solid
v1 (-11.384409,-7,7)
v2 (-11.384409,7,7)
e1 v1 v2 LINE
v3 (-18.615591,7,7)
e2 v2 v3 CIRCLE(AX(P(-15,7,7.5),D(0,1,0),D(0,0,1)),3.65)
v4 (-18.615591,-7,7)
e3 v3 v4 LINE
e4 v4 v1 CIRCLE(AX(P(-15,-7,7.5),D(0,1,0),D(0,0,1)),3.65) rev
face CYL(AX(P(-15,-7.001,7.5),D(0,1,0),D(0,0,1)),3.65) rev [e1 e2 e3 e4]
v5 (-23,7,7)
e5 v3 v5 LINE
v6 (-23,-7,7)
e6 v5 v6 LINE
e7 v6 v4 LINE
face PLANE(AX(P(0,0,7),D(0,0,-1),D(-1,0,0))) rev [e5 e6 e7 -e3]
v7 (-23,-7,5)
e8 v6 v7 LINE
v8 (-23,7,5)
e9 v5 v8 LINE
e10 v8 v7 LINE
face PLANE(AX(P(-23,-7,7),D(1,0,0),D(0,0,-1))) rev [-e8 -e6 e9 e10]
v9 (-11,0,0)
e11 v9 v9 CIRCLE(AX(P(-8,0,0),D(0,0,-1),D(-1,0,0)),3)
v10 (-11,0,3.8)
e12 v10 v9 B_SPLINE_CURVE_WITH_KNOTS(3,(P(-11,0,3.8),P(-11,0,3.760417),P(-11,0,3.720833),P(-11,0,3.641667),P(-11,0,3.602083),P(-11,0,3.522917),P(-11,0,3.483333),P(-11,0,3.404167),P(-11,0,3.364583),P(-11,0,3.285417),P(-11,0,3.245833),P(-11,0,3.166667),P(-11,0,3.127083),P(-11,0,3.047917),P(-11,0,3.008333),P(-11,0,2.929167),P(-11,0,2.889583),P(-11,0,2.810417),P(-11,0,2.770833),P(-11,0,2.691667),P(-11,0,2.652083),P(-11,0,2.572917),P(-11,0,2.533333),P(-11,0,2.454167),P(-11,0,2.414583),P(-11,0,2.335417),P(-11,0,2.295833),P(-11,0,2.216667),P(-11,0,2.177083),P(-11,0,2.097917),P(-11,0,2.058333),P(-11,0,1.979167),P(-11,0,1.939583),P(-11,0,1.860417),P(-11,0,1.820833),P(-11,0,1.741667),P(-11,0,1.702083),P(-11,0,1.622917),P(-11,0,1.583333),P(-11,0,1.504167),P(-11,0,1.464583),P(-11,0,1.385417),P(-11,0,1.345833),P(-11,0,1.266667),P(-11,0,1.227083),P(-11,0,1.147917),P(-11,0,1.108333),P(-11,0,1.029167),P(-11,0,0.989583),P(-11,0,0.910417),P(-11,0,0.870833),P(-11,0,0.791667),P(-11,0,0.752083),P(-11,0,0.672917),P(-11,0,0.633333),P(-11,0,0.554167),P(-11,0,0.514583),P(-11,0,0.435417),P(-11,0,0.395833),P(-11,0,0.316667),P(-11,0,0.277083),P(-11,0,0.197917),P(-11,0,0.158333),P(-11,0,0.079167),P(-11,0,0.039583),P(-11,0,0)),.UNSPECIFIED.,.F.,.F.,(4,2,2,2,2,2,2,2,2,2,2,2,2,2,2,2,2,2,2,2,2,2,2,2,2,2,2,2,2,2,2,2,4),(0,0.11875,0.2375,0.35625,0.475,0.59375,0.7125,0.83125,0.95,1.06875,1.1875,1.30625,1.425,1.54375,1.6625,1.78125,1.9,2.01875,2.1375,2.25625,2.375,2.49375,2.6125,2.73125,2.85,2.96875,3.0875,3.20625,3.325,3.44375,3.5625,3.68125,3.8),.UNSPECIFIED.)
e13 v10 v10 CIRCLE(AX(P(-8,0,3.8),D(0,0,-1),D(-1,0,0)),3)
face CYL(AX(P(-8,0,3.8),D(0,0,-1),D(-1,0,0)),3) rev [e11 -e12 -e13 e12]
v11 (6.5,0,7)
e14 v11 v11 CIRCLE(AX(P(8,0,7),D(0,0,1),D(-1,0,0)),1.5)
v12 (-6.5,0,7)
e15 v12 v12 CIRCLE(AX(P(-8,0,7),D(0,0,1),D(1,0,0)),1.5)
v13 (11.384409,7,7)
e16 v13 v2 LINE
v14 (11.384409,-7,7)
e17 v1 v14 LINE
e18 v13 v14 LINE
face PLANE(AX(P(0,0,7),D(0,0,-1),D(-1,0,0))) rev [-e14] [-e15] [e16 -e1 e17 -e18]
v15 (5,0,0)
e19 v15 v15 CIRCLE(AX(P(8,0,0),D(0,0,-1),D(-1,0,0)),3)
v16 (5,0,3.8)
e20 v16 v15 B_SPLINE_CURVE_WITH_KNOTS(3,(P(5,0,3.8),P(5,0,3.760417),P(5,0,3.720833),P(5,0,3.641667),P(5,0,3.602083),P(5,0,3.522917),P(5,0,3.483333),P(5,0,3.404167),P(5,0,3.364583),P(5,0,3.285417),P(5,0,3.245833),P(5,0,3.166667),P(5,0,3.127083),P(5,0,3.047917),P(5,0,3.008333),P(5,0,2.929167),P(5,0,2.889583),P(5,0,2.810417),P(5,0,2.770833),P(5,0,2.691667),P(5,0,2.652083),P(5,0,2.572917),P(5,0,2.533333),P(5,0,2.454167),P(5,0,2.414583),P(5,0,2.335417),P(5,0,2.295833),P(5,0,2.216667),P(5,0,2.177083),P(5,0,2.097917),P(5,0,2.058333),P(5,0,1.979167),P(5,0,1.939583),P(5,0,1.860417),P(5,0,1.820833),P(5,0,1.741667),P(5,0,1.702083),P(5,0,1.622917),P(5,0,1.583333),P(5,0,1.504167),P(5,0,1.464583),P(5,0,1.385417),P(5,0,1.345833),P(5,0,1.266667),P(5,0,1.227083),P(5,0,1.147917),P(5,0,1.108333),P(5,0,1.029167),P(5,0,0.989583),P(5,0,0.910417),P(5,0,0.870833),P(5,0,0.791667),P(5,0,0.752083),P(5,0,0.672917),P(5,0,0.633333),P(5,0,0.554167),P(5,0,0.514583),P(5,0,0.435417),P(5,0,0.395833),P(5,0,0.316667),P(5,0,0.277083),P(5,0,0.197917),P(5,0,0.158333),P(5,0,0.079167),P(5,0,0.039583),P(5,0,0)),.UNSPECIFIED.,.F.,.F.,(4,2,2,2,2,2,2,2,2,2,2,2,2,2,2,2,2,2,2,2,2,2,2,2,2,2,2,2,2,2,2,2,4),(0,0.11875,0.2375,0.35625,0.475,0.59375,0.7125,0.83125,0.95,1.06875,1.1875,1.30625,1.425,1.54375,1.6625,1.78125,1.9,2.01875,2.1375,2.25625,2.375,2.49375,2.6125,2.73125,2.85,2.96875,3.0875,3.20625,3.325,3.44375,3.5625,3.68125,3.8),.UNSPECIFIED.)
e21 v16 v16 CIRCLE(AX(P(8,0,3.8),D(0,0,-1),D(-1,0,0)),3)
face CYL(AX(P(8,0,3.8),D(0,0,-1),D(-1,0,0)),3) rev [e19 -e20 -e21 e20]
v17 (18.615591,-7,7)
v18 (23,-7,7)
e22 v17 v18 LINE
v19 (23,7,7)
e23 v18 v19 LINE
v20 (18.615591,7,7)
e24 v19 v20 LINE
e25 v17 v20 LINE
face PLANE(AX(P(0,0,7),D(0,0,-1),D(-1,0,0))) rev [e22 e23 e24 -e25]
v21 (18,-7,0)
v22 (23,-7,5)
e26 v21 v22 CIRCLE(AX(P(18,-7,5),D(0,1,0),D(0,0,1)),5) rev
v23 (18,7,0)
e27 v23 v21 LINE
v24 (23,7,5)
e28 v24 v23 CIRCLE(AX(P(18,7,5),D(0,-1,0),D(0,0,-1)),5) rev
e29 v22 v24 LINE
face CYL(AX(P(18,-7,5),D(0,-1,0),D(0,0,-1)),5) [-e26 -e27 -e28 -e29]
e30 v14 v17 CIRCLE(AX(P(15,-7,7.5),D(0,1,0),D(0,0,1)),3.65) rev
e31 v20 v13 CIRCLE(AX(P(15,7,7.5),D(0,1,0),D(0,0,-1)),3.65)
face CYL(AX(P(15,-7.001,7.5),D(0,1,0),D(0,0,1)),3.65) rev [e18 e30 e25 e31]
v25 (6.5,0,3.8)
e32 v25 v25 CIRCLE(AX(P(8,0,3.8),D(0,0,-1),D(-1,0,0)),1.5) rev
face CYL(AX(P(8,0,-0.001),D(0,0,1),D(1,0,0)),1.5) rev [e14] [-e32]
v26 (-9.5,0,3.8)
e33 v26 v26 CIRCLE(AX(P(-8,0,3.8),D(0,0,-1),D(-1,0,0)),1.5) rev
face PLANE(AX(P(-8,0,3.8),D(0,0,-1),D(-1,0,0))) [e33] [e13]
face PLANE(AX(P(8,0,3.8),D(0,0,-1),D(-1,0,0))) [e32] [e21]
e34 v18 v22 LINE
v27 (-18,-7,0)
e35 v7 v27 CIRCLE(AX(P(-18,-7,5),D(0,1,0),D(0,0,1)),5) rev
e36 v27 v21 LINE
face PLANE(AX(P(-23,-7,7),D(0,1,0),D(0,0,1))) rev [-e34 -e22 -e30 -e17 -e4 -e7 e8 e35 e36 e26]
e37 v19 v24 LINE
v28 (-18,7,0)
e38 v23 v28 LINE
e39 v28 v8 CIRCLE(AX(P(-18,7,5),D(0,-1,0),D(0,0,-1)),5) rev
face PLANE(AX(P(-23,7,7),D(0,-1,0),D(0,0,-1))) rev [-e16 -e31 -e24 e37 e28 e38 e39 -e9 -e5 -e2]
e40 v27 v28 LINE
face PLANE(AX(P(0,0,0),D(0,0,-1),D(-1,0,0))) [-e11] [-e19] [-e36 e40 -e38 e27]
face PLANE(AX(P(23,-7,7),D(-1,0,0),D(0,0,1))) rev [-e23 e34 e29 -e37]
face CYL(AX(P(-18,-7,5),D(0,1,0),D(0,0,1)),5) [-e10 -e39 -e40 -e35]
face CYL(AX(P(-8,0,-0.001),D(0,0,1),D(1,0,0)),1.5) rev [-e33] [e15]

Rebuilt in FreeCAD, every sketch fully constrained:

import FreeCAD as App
import Part
import Sketcher
from FreeCAD import Vector
Q = App.Units.Quantity


def edges_at(feature, points):
    """Names of the edges that pass closest to the given points."""
    edges = feature.Shape.Edges
    near = lambda p: min(range(len(edges)), key=lambda i: edges[i].distToShape(Part.Vertex(*p))[0])
    return sorted({f"Edge{near(p) + 1}" for p in points})


def add_polygon(sketch, points):
    """Adds a closed chain of lines whose ends are joined by coincident constraints."""
    first, n = sketch.GeometryCount, len(points)
    for a, b in zip(points, points[1:] + points[:1]):
        sketch.addGeometry(Part.LineSegment(App.Vector(*a, 0), App.Vector(*b, 0)), False)
    for i in range(n):
        sketch.addConstraint(Sketcher.Constraint("Coincident", first + i, 2, first + (i + 1) % n, 1))

doc = App.newDocument("Part")
body = doc.addObject("PartDesign::Body", "Body")

# Sketch on XY plane
sketch1 = doc.addObject("Sketcher::SketchObject", "Sketch")
body.addObject(sketch1)
sketch1.AttachmentSupport = (doc.XY_Plane, [""])
sketch1.MapMode = "FlatFace"
add_polygon(sketch1, [(-23, 7), (-23, -7), (23, -7), (23, 7)])  # lines 0-3
sketch1.addConstraint([
    Sketcher.Constraint("Vertical", 0),
    Sketcher.Constraint("Horizontal", 1),
    Sketcher.Constraint("Vertical", 2),
    Sketcher.Constraint("Horizontal", 3),
    Sketcher.Constraint("Symmetric", 0, 2, 2, 2, -1, 1),
    Sketcher.Constraint("DistanceX", 1, 1, 1, 2, Q("46 mm")),
    Sketcher.Constraint("DistanceY", 0, 2, 0, 1, Q("14 mm")),
])
pad1 = doc.addObject("PartDesign::Pad", "Pad")
body.addObject(pad1)
pad1.Profile = sketch1
pad1.Length = 7

# Sketch on XY plane
sketch2 = doc.addObject("Sketcher::SketchObject", "Sketch001")
body.addObject(sketch2)
sketch2.AttachmentSupport = (doc.XY_Plane, [""])
sketch2.MapMode = "FlatFace"
sketch2.AttachmentOffset = App.Placement(Vector(0, 0, 7), App.Rotation())
sketch2.addGeometry(Part.Circle(Vector(-8, 0, 0), Vector(0, 0, 1), 1.5), False)
sketch2.addConstraint([
    Sketcher.Constraint("PointOnObject", 0, 3, -1),
    Sketcher.Constraint("Diameter", 0, Q("3 mm")),
    Sketcher.Constraint("DistanceX", 0, 3, -1, 1, Q("8 mm")),
])
pocket1 = doc.addObject("PartDesign::Pocket", "Pocket")
body.addObject(pocket1)
pocket1.Profile = sketch2
pocket1.Type = "UpToFirst"

# Sketch on XY plane
sketch3 = doc.addObject("Sketcher::SketchObject", "Sketch002")
body.addObject(sketch3)
sketch3.AttachmentSupport = (doc.XY_Plane, [""])
sketch3.MapMode = "FlatFace"
sketch3.AttachmentOffset = App.Placement(Vector(0, 0, 7), App.Rotation())
sketch3.addGeometry(Part.Circle(Vector(8, 0, 0), Vector(0, 0, 1), 1.5), False)
sketch3.addConstraint([
    Sketcher.Constraint("PointOnObject", 0, 3, -1),
    Sketcher.Constraint("Diameter", 0, Q("3 mm")),
    Sketcher.Constraint("DistanceX", -1, 1, 0, 3, Q("8 mm")),
])
pocket2 = doc.addObject("PartDesign::Pocket", "Pocket001")
body.addObject(pocket2)
pocket2.Profile = sketch3
pocket2.Type = "UpToFirst"

# Sketch on XZ plane
sketch4 = doc.addObject("Sketcher::SketchObject", "Sketch003")
body.addObject(sketch4)
sketch4.AttachmentSupport = (doc.XZ_Plane, [""])
sketch4.MapMode = "FlatFace"
sketch4.AttachmentOffset = App.Placement(Vector(0, 0, -7), App.Rotation())
sketch4.addGeometry(Part.Circle(Vector(-15, 7.5, 0), Vector(0, 0, 1), 3.6), False)
sketch4.addConstraint([
    Sketcher.Constraint("Diameter", 0, Q("7.3 mm")),
    Sketcher.Constraint("DistanceX", 0, 3, -1, 1, Q("15 mm")),
    Sketcher.Constraint("DistanceY", -1, 1, 0, 3, Q("7.5 mm")),
])
pocket3 = doc.addObject("PartDesign::Pocket", "Pocket002")
body.addObject(pocket3)
pocket3.Profile = sketch4
pocket3.Length = 14
pocket3.Reversed = True

# Sketch on XZ plane
sketch5 = doc.addObject("Sketcher::SketchObject", "Sketch004")
body.addObject(sketch5)
sketch5.AttachmentSupport = (doc.XZ_Plane, [""])
sketch5.MapMode = "FlatFace"
sketch5.AttachmentOffset = App.Placement(Vector(0, 0, -7), App.Rotation())
sketch5.addGeometry(Part.Circle(Vector(15, 7.5, 0), Vector(0, 0, 1), 3.6), False)
sketch5.addConstraint([
    Sketcher.Constraint("Diameter", 0, Q("7.3 mm")),
    Sketcher.Constraint("DistanceX", -1, 1, 0, 3, Q("15 mm")),
    Sketcher.Constraint("DistanceY", -1, 1, 0, 3, Q("7.5 mm")),
])
pocket4 = doc.addObject("PartDesign::Pocket", "Pocket003")
body.addObject(pocket4)
pocket4.Profile = sketch5
pocket4.Length = 14
pocket4.Reversed = True

# Sketch on XY plane
sketch6 = doc.addObject("Sketcher::SketchObject", "Sketch005")
body.addObject(sketch6)
sketch6.AttachmentSupport = (doc.XY_Plane, [""])
sketch6.MapMode = "FlatFace"
sketch6.addGeometry([
    Part.Circle(Vector(8, 0, 0), Vector(0, 0, 1), 3),
    Part.Circle(Vector(-8, 0, 0), Vector(0, 0, 1), 3),
], False)
sketch6.addConstraint([
    Sketcher.Constraint("Equal", 0, 1),
    Sketcher.Constraint("Symmetric", 0, 3, 1, 3, -1, 1),
    Sketcher.Constraint("PointOnObject", 0, 3, -1),
    Sketcher.Constraint("Diameter", 0, Q("6 mm")),
    Sketcher.Constraint("DistanceX", -1, 1, 0, 3, Q("8 mm")),
])
pocket5 = doc.addObject("PartDesign::Pocket", "Pocket004")
body.addObject(pocket5)
pocket5.Profile = sketch6
pocket5.Length = 3.8
pocket5.Reversed = True
doc.recompute()

fillet = doc.addObject("PartDesign::Fillet", "Fillet")
body.addObject(fillet)
fillet.Base = (pocket5, edges_at(pocket5, [(-23, 0, 0), (23, 0, 0)]))
fillet.Radius = 5

doc.recompute()
